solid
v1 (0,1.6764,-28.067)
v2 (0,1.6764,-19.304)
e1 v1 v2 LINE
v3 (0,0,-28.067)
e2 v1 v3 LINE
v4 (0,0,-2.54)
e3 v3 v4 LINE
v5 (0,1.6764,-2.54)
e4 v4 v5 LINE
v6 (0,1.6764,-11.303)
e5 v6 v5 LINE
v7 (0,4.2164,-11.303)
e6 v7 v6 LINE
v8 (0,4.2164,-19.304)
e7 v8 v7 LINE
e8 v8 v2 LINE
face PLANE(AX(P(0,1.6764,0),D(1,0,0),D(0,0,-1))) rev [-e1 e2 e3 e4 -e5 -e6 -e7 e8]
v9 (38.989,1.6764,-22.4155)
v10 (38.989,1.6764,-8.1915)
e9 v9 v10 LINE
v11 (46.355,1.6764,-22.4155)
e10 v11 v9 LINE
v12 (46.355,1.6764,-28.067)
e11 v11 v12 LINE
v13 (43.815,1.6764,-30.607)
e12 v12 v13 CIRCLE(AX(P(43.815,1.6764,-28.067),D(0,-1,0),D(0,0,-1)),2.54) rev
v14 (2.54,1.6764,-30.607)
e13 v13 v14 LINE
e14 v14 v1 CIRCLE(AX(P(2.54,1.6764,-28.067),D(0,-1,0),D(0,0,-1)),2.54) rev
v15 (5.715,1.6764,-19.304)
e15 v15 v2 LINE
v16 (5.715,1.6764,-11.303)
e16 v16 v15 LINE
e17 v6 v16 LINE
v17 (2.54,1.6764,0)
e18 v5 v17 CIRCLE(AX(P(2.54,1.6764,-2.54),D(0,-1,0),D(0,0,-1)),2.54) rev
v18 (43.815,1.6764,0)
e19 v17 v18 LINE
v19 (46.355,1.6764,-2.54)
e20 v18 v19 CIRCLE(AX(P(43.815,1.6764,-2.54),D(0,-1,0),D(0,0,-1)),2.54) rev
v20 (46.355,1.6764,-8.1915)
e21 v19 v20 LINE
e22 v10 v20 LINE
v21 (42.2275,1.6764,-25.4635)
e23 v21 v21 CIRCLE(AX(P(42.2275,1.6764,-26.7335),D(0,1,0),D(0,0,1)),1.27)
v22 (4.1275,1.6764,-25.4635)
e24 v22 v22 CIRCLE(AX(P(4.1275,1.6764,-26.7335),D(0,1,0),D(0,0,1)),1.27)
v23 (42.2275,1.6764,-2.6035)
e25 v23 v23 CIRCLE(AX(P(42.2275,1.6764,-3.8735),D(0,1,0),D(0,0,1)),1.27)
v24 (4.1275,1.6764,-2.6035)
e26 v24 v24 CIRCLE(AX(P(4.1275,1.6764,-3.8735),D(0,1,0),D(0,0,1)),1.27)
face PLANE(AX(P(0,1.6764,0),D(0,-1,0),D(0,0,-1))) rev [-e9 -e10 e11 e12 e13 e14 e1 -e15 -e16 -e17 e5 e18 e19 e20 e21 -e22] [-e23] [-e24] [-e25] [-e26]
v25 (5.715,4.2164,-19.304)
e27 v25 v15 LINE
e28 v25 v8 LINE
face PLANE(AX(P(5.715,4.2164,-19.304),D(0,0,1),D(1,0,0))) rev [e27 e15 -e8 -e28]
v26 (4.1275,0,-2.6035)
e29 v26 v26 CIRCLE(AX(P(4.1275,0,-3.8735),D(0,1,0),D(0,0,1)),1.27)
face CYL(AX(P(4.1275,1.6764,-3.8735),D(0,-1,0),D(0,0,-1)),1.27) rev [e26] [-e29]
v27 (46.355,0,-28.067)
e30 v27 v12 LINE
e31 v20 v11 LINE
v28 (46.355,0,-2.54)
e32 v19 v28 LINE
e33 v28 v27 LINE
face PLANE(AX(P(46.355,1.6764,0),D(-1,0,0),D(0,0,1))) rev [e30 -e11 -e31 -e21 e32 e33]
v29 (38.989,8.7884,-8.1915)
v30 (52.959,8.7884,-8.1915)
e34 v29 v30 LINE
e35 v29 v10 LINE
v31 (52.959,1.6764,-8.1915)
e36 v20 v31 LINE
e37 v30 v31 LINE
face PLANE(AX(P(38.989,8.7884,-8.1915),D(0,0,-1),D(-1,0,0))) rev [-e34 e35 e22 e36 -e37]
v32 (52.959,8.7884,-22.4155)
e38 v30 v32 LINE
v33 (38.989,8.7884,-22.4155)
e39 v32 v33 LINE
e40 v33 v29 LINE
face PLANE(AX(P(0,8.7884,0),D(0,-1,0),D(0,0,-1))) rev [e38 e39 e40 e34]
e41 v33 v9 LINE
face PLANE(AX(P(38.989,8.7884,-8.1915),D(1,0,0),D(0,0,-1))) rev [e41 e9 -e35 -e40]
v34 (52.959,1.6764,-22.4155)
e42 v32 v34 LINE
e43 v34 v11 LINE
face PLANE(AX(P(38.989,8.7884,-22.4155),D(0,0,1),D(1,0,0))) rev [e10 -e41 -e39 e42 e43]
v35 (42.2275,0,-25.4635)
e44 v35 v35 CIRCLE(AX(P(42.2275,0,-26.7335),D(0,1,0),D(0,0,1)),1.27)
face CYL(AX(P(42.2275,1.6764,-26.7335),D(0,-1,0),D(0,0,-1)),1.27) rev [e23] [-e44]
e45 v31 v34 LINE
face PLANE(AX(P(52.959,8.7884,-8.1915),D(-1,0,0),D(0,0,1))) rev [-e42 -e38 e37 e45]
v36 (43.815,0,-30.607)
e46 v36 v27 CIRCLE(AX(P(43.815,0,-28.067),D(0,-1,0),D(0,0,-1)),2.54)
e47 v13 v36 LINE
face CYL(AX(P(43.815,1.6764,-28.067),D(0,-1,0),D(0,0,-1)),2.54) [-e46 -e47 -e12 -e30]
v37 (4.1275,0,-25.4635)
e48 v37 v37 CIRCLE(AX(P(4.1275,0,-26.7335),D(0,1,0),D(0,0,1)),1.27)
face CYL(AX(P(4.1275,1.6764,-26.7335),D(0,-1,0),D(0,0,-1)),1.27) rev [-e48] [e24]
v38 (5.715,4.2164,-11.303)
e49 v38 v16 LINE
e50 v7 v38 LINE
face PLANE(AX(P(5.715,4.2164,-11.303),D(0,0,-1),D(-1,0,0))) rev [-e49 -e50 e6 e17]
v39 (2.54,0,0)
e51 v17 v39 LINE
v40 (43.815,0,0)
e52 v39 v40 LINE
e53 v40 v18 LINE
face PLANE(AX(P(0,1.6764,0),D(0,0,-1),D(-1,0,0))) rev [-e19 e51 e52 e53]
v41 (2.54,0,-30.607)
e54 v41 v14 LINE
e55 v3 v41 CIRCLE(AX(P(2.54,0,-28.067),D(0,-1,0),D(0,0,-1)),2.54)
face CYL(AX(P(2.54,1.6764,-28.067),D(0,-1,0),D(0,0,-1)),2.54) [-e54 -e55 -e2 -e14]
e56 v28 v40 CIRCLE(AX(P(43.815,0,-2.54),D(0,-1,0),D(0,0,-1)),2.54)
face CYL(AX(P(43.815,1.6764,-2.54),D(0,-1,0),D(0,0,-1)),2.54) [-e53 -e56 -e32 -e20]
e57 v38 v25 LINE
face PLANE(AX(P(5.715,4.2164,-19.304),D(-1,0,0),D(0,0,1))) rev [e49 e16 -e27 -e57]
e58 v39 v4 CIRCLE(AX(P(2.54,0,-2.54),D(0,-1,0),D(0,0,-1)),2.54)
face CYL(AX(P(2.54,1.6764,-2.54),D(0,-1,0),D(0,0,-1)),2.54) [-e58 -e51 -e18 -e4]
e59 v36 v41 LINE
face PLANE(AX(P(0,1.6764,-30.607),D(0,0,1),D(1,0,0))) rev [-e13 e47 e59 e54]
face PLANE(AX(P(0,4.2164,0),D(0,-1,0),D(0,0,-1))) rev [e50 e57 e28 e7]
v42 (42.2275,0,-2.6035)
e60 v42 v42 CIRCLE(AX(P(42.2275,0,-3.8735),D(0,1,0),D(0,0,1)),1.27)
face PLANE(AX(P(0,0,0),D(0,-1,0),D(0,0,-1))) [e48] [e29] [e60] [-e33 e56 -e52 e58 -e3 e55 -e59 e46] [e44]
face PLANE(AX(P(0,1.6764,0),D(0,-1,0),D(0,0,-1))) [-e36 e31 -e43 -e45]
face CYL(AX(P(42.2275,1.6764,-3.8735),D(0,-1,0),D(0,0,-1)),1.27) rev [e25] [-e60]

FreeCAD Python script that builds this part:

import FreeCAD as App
import Part
import Sketcher
Q = App.Units.Quantity


def edges_at(feature, points):
    """Names of the edges that pass closest to the given points."""
    edges = feature.Shape.Edges
    near = lambda p: min(range(len(edges)), key=lambda i: edges[i].distToShape(Part.Vertex(*p))[0])
    return sorted({f"Edge{near(p) + 1}" for p in points})

doc = App.newDocument("Part")
body = doc.addObject("PartDesign::Body", "Body")

sketch1 = body.newObject("Sketcher::SketchObject", "Sketch")
sketch1.AttachmentSupport = (doc.getObject("XZ_Plane"), [""])
sketch1.MapMode = "FlatFace"
sketch1.addGeometry([
    Part.LineSegment(App.Vector(0, -30.6, 0), App.Vector(0, 0, 0)),
    Part.LineSegment(App.Vector(0, 0, 0), App.Vector(46.4, 0, 0)),
    Part.LineSegment(App.Vector(46.4, 0, 0), App.Vector(46.4, -30.6, 0)),
    Part.LineSegment(App.Vector(46.4, -30.6, 0), App.Vector(0, -30.6, 0)),
    Part.Circle(App.Vector(4.1, -3.9, 0), App.Vector(0, 0, 1), 1.3),
    Part.Circle(App.Vector(42.2, -3.9, 0), App.Vector(0, 0, 1), 1.3),
    Part.Circle(App.Vector(4.1, -26.7, 0), App.Vector(0, 0, 1), 1.3),
    Part.Circle(App.Vector(42.2, -26.7, 0), App.Vector(0, 0, 1), 1.3),
], False)
sketch1.addConstraint([
    Sketcher.Constraint("Coincident", 0, 2, 1, 1),
    Sketcher.Constraint("Coincident", 1, 2, 2, 1),
    Sketcher.Constraint("Coincident", 2, 2, 3, 1),
    Sketcher.Constraint("Coincident", 3, 2, 0, 1),
    Sketcher.Constraint("Vertical", 0),
    Sketcher.Constraint("Horizontal", 1),
    Sketcher.Constraint("Vertical", 2),
    Sketcher.Constraint("Horizontal", 3),
    Sketcher.Constraint("Coincident", 0, 2, -1, 1),
    Sketcher.Constraint("Equal", 4, 5),
    Sketcher.Constraint("Equal", 5, 6),
    Sketcher.Constraint("Equal", 6, 7),
    Sketcher.Constraint("Horizontal", 4, 3, 5, 3),
    Sketcher.Constraint("Horizontal", 6, 3, 7, 3),
    Sketcher.Constraint("Vertical", 4, 3, 6, 3),
    Sketcher.Constraint("Vertical", 5, 3, 7, 3),
    Sketcher.Constraint("Diameter", 4, Q("0.1 in")),
    Sketcher.Constraint("DistanceX", 4, 3, 5, 3, Q("1.5 in")),
    Sketcher.Constraint("DistanceY", 6, 3, 4, 3, Q("0.9 in")),
    Sketcher.Constraint("DistanceX", 1, 1, 1, 2, Q("1.825 in")),
    Sketcher.Constraint("DistanceY", 0, 1, 0, 2, Q("1.205 in")),
    Sketcher.Constraint("DistanceX", -1, 1, 4, 3, Q("0.1625 in")),
    Sketcher.Constraint("DistanceY", 4, 3, -1, 1, Q("0.1525 in")),
])
pad1 = body.newObject("PartDesign::Pad", "Pad")
pad1.Profile = sketch1
pad1.Length = Q("0.066 in")
pad1.Reversed = True

sketch2 = body.newObject("Sketcher::SketchObject", "Sketch001")
sketch2.AttachmentSupport = (doc.getObject("XZ_Plane"), [""])
sketch2.MapMode = "FlatFace"
sketch2.AttachmentOffset = App.Placement(App.Vector(0, 0, -0.066 * 25.4), App.Rotation())
sketch2.addGeometry([
    Part.LineSegment(App.Vector(39, -22, 0), App.Vector(39, -8, 0)),
    Part.LineSegment(App.Vector(39, -8, 0), App.Vector(53, -8, 0)),
    Part.LineSegment(App.Vector(53, -8, 0), App.Vector(53, -22, 0)),
    Part.LineSegment(App.Vector(53, -22, 0), App.Vector(39, -22, 0)),
], False)
sketch2.addConstraint([
    Sketcher.Constraint("Coincident", 0, 2, 1, 1),
    Sketcher.Constraint("Coincident", 1, 2, 2, 1),
    Sketcher.Constraint("Coincident", 2, 2, 3, 1),
    Sketcher.Constraint("Coincident", 3, 2, 0, 1),
    Sketcher.Constraint("Vertical", 0),
    Sketcher.Constraint("Horizontal", 1),
    Sketcher.Constraint("Vertical", 2),
    Sketcher.Constraint("Horizontal", 3),
    Sketcher.Constraint("DistanceX", 1, 1, 1, 2, Q("0.55 in")),
    Sketcher.Constraint("DistanceY", 0, 1, 0, 2, Q("0.56 in")),
    Sketcher.Constraint("DistanceX", -1, 1, 0, 2, Q("1.535 in")),
    Sketcher.Constraint("DistanceY", 0, 2, -1, 1, Q("0.3225 in")),
])
pad2 = body.newObject("PartDesign::Pad", "Pad001")
pad2.Profile = sketch2
pad2.Length = Q("0.28 in")
pad2.Reversed = True

sketch3 = body.newObject("Sketcher::SketchObject", "Sketch002")
sketch3.AttachmentSupport = (doc.getObject("XZ_Plane"), [""])
sketch3.MapMode = "FlatFace"
sketch3.AttachmentOffset = App.Placement(App.Vector(0, 0, -0.066 * 25.4), App.Rotation())
sketch3.addGeometry([
    Part.LineSegment(App.Vector(0, -19, 0), App.Vector(0, -11, 0)),
    Part.LineSegment(App.Vector(0, -11, 0), App.Vector(6, -11, 0)),
    Part.LineSegment(App.Vector(6, -11, 0), App.Vector(6, -19, 0)),
    Part.LineSegment(App.Vector(6, -19, 0), App.Vector(0, -19, 0)),
], False)
sketch3.addConstraint([
    Sketcher.Constraint("Coincident", 0, 2, 1, 1),
    Sketcher.Constraint("Coincident", 1, 2, 2, 1),
    Sketcher.Constraint("Coincident", 2, 2, 3, 1),
    Sketcher.Constraint("Coincident", 3, 2, 0, 1),
    Sketcher.Constraint("Vertical", 0),
    Sketcher.Constraint("Horizontal", 1),
    Sketcher.Constraint("Vertical", 2),
    Sketcher.Constraint("Horizontal", 3),
    Sketcher.Constraint("PointOnObject", 0, 2, -2),
    Sketcher.Constraint("DistanceX", 1, 1, 1, 2, Q("0.225 in")),
    Sketcher.Constraint("DistanceY", 0, 1, 0, 2, Q("0.315 in")),
    Sketcher.Constraint("DistanceY", 2, 2, -1, 1, Q("0.76 in")),
])
pad3 = body.newObject("PartDesign::Pad", "Pad002")
pad3.Profile = sketch3
pad3.Length = Q("0.1 in")
pad3.Reversed = True
doc.recompute()

fillet = body.newObject("PartDesign::Fillet", "Fillet")
fillet.Base = (pad3, edges_at(pad3, [
    (0, 0.838, -30.607),
    (46.355, 0.838, -30.607),
    (46.355, 0.838, 0),
    (0, 0.838, 0),
]))
fillet.Radius = Q("0.1 in")

doc.recompute()
